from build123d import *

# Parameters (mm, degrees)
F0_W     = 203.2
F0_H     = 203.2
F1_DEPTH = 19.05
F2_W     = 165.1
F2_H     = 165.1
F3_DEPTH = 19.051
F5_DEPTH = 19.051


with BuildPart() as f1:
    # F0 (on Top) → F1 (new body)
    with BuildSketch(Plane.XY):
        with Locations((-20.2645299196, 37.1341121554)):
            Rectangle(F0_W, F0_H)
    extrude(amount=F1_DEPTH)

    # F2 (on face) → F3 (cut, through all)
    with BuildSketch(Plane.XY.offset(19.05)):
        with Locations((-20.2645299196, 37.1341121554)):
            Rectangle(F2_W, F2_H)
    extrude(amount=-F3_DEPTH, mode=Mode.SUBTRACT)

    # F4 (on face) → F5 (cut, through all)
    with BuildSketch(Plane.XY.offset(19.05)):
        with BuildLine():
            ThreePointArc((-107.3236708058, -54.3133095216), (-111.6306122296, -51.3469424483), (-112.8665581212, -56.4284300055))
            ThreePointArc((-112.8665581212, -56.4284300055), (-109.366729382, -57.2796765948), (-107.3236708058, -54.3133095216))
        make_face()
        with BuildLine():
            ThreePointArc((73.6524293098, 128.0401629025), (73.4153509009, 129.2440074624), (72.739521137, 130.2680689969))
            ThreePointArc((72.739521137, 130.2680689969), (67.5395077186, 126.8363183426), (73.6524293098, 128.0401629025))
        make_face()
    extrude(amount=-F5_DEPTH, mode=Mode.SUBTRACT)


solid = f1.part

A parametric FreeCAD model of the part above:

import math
import FreeCAD as App
import Part
import Sketcher
Q = App.Units.Quantity

doc = App.newDocument("Part")
params = doc.addObject("Spreadsheet::Sheet", "Params")
for row, (alias, value) in enumerate([
    ("sketch1_width", "8 in"),
    ("pad1_length", "0.75 in"),
    ("sketch2_width", "6.5 in"),
    ("sketch3_radius", "0.125 in"),
], start=1):
    params.set(f"A{row}", alias)
    params.set(f"B{row}", "=" + value)
    params.setAlias(f"B{row}", alias)

body = doc.addObject("PartDesign::Body", "Body")

sketch1 = body.newObject("Sketcher::SketchObject", "Sketch")
sketch1.AttachmentSupport = (doc.getObject("XY_Plane"), [""])
sketch1.MapMode = "FlatFace"
sketch1.addGeometry(Part.LineSegment(App.Vector(-121.86453, 138.734112, 0), App.Vector(-121.86453, -64.465888, 0)), False)
sketch1.addGeometry(Part.LineSegment(App.Vector(-121.86453, -64.465888, 0), App.Vector(81.33547, -64.465888, 0)), False)
sketch1.addGeometry(Part.LineSegment(App.Vector(81.33547, -64.465888, 0), App.Vector(81.33547, 138.734112, 0)), False)
sketch1.addGeometry(Part.LineSegment(App.Vector(81.33547, 138.734112, 0), App.Vector(-121.86453, 138.734112, 0)), False)
sketch1.addConstraint(Sketcher.Constraint("Coincident", 0, 2, 1, 1))
sketch1.addConstraint(Sketcher.Constraint("Coincident", 1, 2, 2, 1))
sketch1.addConstraint(Sketcher.Constraint("Coincident", 2, 2, 3, 1))
sketch1.addConstraint(Sketcher.Constraint("Coincident", 3, 2, 0, 1))
sketch1.addConstraint(Sketcher.Constraint("Vertical", 0))
sketch1.addConstraint(Sketcher.Constraint("Horizontal", 1))
sketch1.addConstraint(Sketcher.Constraint("Vertical", 2))
sketch1.addConstraint(Sketcher.Constraint("Horizontal", 3))
sketch1.addConstraint(Sketcher.Constraint("Equal", 3, 0))
sketch1.addConstraint(Sketcher.Constraint("DistanceX", 1, 1, 1, 2, Q("8 in")))
sketch1.addConstraint(Sketcher.Constraint("DistanceX", 0, 2, -1, 1, 121.86453))
sketch1.addConstraint(Sketcher.Constraint("DistanceY", 0, 2, -1, 1, 64.465888))
sketch1.setExpression("Constraints[9]", "Params.sketch1_width")
pad1 = body.newObject("PartDesign::Pad", "Pad")
pad1.Profile = sketch1
pad1.setExpression("Length", "Params.pad1_length")

sketch2 = body.newObject("Sketcher::SketchObject", "Sketch001")
sketch2.AttachmentSupport = (doc.getObject("XY_Plane"), [""])
sketch2.MapMode = "FlatFace"
sketch2.AttachmentOffset = App.Placement(App.Vector(0, 0, 0.75 * 25.4), App.Rotation())
sketch2.addGeometry(Part.LineSegment(App.Vector(-102.81453, 119.684112, 0), App.Vector(-102.81453, -45.415888, 0)), False)
sketch2.addGeometry(Part.LineSegment(App.Vector(-102.81453, -45.415888, 0), App.Vector(62.28547, -45.415888, 0)), False)
sketch2.addGeometry(Part.LineSegment(App.Vector(62.28547, -45.415888, 0), App.Vector(62.28547, 119.684112, 0)), False)
sketch2.addGeometry(Part.LineSegment(App.Vector(62.28547, 119.684112, 0), App.Vector(-102.81453, 119.684112, 0)), False)
sketch2.addConstraint(Sketcher.Constraint("Coincident", 0, 2, 1, 1))
sketch2.addConstraint(Sketcher.Constraint("Coincident", 1, 2, 2, 1))
sketch2.addConstraint(Sketcher.Constraint("Coincident", 2, 2, 3, 1))
sketch2.addConstraint(Sketcher.Constraint("Coincident", 3, 2, 0, 1))
sketch2.addConstraint(Sketcher.Constraint("Vertical", 0))
sketch2.addConstraint(Sketcher.Constraint("Horizontal", 1))
sketch2.addConstraint(Sketcher.Constraint("Vertical", 2))
sketch2.addConstraint(Sketcher.Constraint("Horizontal", 3))
sketch2.addConstraint(Sketcher.Constraint("Equal", 3, 0))
sketch2.addConstraint(Sketcher.Constraint("DistanceX", 1, 1, 1, 2, Q("6.5 in")))
sketch2.addConstraint(Sketcher.Constraint("DistanceX", 0, 2, -1, 1, 102.81453))
sketch2.addConstraint(Sketcher.Constraint("DistanceY", 0, 2, -1, 1, 45.415888))
sketch2.setExpression("Constraints[9]", "Params.sketch2_width")
pocket1 = body.newObject("PartDesign::Pocket", "Pocket")
pocket1.Profile = sketch2
pocket1.Type = "ThroughAll"

sketch3 = body.newObject("Sketcher::SketchObject", "Sketch002")
sketch3.AttachmentSupport = (doc.getObject("XY_Plane"), [""])
sketch3.MapMode = "FlatFace"
sketch3.AttachmentOffset = App.Placement(App.Vector(0, 0, 0.75 * 25.4), App.Rotation())
sketch3.addGeometry(Part.ArcOfCircle(Part.Circle(App.Vector(-110.498671, -54.31331, 0), App.Vector(0, 0, 1), 3.175), math.radians(0), math.radians(221.772891)), False)
sketch3.addGeometry(Part.ArcOfCircle(Part.Circle(App.Vector(-110.498671, -54.31331, 0), App.Vector(0, 0, 1), 3.175), math.radians(-138.227109), math.radians(0)), False)
sketch3.addGeometry(Part.ArcOfCircle(Part.Circle(App.Vector(70.477429, 128.040163, 0), App.Vector(0, 0, 1), 3.175), math.radians(0), math.radians(44.563773)), False)
sketch3.addGeometry(Part.ArcOfCircle(Part.Circle(App.Vector(70.477429, 128.040163, 0), App.Vector(0, 0, 1), 3.175), math.radians(44.563773), math.radians(360)), False)
sketch3.addConstraint(Sketcher.Constraint("Tangent", 0, 1, 1, 2))
sketch3.addConstraint(Sketcher.Constraint("Coincident", 1, 1, 0, 2))
sketch3.addConstraint(Sketcher.Constraint("Tangent", 2, 1, 3, 2))
sketch3.addConstraint(Sketcher.Constraint("Coincident", 3, 1, 2, 2))
sketch3.addConstraint(Sketcher.Constraint("Equal", 1, 2))
sketch3.addConstraint(Sketcher.Constraint("Horizontal", 1, 3, 0, 1))
sketch3.addConstraint(Sketcher.Constraint("Horizontal", 3, 3, 2, 1))
sketch3.addConstraint(Sketcher.Constraint("Radius", 0, Q("0.125 in")))
sketch3.addConstraint(Sketcher.Constraint("DistanceX", 0, 3, 2, 3, 180.9761))
sketch3.addConstraint(Sketcher.Constraint("DistanceX", 0, 3, -1, 1, 110.498671))
sketch3.addConstraint(Sketcher.Constraint("DistanceY", 0, 3, -1, 1, 54.31331))
sketch3.addConstraint(Sketcher.Constraint("DistanceX", 1, 1, -1, 1, 112.866558))
sketch3.addConstraint(Sketcher.Constraint("DistanceX", -1, 1, 3, 1, 72.739521))
sketch3.addConstraint(Sketcher.Constraint("DistanceY", -1, 1, 3, 1, 130.268069))
sketch3.setExpression("Constraints[7]", "Params.sketch3_radius")
pocket2 = body.newObject("PartDesign::Pocket", "Pocket001")
pocket2.Profile = sketch3
pocket2.Type = "ThroughAll"

doc.recompute()
